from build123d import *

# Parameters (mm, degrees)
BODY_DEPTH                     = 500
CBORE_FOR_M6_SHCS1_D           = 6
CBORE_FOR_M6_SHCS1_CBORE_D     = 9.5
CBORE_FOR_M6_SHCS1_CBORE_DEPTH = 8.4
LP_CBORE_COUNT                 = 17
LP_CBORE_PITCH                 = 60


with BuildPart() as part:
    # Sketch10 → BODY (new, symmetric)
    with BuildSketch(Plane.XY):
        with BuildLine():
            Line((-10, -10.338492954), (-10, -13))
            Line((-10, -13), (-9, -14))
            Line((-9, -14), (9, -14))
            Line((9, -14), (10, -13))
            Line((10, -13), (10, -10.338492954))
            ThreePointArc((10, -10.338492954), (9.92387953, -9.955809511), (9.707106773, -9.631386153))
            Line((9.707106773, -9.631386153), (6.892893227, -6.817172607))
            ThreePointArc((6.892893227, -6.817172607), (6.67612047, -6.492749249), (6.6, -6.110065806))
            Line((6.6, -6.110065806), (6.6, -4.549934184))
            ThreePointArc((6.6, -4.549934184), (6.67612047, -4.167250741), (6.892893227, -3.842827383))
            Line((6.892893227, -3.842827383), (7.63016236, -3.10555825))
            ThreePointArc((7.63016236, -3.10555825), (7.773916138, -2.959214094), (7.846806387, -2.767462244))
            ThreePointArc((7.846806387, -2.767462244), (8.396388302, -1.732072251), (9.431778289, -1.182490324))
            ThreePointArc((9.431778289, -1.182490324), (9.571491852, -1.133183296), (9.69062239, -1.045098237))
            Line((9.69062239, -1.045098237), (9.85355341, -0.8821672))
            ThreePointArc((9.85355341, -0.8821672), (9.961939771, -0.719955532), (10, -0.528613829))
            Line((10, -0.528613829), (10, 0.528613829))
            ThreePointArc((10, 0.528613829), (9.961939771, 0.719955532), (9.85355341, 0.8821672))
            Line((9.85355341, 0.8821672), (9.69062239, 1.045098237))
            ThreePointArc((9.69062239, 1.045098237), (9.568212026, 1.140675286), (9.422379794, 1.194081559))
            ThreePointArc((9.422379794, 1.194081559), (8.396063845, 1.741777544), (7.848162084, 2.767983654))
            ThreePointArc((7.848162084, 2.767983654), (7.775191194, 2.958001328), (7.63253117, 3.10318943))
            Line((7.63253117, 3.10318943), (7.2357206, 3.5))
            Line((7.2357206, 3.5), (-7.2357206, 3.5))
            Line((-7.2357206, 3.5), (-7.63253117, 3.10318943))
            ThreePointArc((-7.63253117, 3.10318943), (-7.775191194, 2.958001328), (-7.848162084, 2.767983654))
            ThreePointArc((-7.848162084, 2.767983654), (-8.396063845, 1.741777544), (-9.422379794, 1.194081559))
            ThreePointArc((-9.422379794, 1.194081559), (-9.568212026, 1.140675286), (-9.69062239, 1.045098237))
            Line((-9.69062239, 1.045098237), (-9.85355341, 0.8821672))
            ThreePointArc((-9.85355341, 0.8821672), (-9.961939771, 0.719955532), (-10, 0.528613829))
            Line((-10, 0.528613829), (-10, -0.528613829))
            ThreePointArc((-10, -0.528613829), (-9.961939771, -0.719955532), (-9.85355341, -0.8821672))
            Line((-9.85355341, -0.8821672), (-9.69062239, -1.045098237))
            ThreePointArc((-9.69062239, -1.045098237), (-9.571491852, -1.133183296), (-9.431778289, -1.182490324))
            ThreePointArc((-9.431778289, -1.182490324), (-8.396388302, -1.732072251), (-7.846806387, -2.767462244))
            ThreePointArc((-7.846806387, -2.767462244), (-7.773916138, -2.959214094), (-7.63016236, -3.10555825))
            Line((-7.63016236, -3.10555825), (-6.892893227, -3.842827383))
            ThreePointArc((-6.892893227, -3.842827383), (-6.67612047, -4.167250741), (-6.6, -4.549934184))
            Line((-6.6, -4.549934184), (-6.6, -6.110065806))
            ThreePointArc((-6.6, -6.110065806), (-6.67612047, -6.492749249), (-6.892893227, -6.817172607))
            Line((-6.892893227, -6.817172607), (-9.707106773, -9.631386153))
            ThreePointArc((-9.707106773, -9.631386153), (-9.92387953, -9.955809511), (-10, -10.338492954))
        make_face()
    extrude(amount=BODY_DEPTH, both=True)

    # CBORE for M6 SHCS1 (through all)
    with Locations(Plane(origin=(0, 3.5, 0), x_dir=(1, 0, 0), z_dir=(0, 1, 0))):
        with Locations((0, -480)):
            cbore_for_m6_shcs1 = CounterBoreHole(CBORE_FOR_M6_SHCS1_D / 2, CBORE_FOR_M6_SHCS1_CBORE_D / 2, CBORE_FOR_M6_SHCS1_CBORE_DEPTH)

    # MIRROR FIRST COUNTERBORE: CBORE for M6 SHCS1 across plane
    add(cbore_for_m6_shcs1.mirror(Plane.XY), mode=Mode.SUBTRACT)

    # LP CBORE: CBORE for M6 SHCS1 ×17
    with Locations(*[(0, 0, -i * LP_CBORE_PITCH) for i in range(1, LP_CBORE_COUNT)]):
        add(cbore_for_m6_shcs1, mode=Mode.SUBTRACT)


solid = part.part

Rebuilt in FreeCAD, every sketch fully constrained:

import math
import FreeCAD as App
import Part
import Sketcher
Q = App.Units.Quantity

doc = App.newDocument("Part")
body = doc.addObject("PartDesign::Body", "Body")

sketch1 = body.newObject("Sketcher::SketchObject", "Sketch")
sketch1.AttachmentSupport = (doc.getObject("XY_Plane"), [""])
sketch1.MapMode = "FlatFace"
sketch1.addGeometry([
    Part.LineSegment(App.Vector(-10, -10.34, 0), App.Vector(-10, -13, 0)),
    Part.LineSegment(App.Vector(-10, -13, 0), App.Vector(-9, -14, 0)),
    Part.LineSegment(App.Vector(-9, -14, 0), App.Vector(9, -14, 0)),
    Part.LineSegment(App.Vector(9, -14, 0), App.Vector(10, -13, 0)),
    Part.LineSegment(App.Vector(10, -13, 0), App.Vector(10, -10.34, 0)),
    Part.ArcOfCircle(Part.Circle(App.Vector(9, -10.34, 0), App.Vector(0, 0, 1), 1), math.radians(0), math.radians(45)),
    Part.LineSegment(App.Vector(9.71, -9.63, 0), App.Vector(6.89, -6.82, 0)),
    Part.ArcOfCircle(Part.Circle(App.Vector(7.6, -6.11, 0), App.Vector(0, 0, 1), 1), math.radians(-180), math.radians(-135)),
    Part.LineSegment(App.Vector(6.6, -6.11, 0), App.Vector(6.6, -4.55, 0)),
    Part.ArcOfCircle(Part.Circle(App.Vector(7.6, -4.55, 0), App.Vector(0, 0, 1), 1), math.radians(135), math.radians(180)),
    Part.LineSegment(App.Vector(6.89, -3.84, 0), App.Vector(7.63, -3.11, 0)),
    Part.ArcOfCircle(Part.Circle(App.Vector(7.35, -2.69, 0), App.Vector(0, 0, 1), 0.5), math.radians(-56), math.radians(-9)),
    Part.ArcOfCircle(Part.Circle(App.Vector(9.81, -3.15, 0), App.Vector(0, 0, 1), 2), math.radians(101), math.radians(169)),
    Part.ArcOfCircle(Part.Circle(App.Vector(9.34, -0.69, 0), App.Vector(0, 0, 1), 0.5), math.radians(-79), math.radians(-45)),
    Part.LineSegment(App.Vector(9.69, -1.05, 0), App.Vector(9.85, -0.88, 0)),
    Part.ArcOfCircle(Part.Circle(App.Vector(9.5, -0.53, 0), App.Vector(0, 0, 1), 0.5), math.radians(-45), math.radians(0)),
    Part.LineSegment(App.Vector(10, -0.53, 0), App.Vector(10, 0.53, 0)),
    Part.ArcOfCircle(Part.Circle(App.Vector(9.5, 0.53, 0), App.Vector(0, 0, 1), 0.5), math.radians(0), math.radians(45)),
    Part.LineSegment(App.Vector(9.85, 0.88, 0), App.Vector(9.69, 1.05, 0)),
    Part.ArcOfCircle(Part.Circle(App.Vector(9.33, 0.7, 0), App.Vector(0, 0, 1), 0.5), math.radians(43), math.radians(79)),
    Part.ArcOfCircle(Part.Circle(App.Vector(9.81, 3.16, 0), App.Vector(0, 0, 1), 2), math.radians(-169), math.radians(-101)),
    Part.ArcOfCircle(Part.Circle(App.Vector(7.35, 2.69, 0), App.Vector(0, 0, 1), 0.5), math.radians(9), math.radians(56)),
    Part.LineSegment(App.Vector(7.63, 3.1, 0), App.Vector(7.24, 3.5, 0)),
    Part.LineSegment(App.Vector(7.24, 3.5, 0), App.Vector(-7.24, 3.5, 0)),
    Part.LineSegment(App.Vector(-7.24, 3.5, 0), App.Vector(-7.63, 3.1, 0)),
    Part.ArcOfCircle(Part.Circle(App.Vector(-7.35, 2.69, 0), App.Vector(0, 0, 1), 0.5), math.radians(124), math.radians(171)),
    Part.ArcOfCircle(Part.Circle(App.Vector(-9.81, 3.16, 0), App.Vector(0, 0, 1), 2), math.radians(-79), math.radians(-11)),
    Part.ArcOfCircle(Part.Circle(App.Vector(-9.33, 0.7, 0), App.Vector(0, 0, 1), 0.5), math.radians(101), math.radians(137)),
    Part.LineSegment(App.Vector(-9.69, 1.05, 0), App.Vector(-9.85, 0.88, 0)),
    Part.ArcOfCircle(Part.Circle(App.Vector(-9.5, 0.53, 0), App.Vector(0, 0, 1), 0.5), math.radians(135), math.radians(180)),
    Part.LineSegment(App.Vector(-10, 0.53, 0), App.Vector(-10, -0.53, 0)),
    Part.ArcOfCircle(Part.Circle(App.Vector(-9.5, -0.53, 0), App.Vector(0, 0, 1), 0.5), math.radians(-180), math.radians(-135)),
    Part.LineSegment(App.Vector(-9.85, -0.88, 0), App.Vector(-9.69, -1.05, 0)),
    Part.ArcOfCircle(Part.Circle(App.Vector(-9.34, -0.69, 0), App.Vector(0, 0, 1), 0.5), math.radians(-135), math.radians(-101)),
    Part.ArcOfCircle(Part.Circle(App.Vector(-9.81, -3.15, 0), App.Vector(0, 0, 1), 2), math.radians(11), math.radians(79)),
    Part.ArcOfCircle(Part.Circle(App.Vector(-7.35, -2.69, 0), App.Vector(0, 0, 1), 0.5), math.radians(-171), math.radians(-124)),
    Part.LineSegment(App.Vector(-7.63, -3.11, 0), App.Vector(-6.89, -3.84, 0)),
    Part.ArcOfCircle(Part.Circle(App.Vector(-7.6, -4.55, 0), App.Vector(0, 0, 1), 1), math.radians(0), math.radians(45)),
    Part.LineSegment(App.Vector(-6.6, -4.55, 0), App.Vector(-6.6, -6.11, 0)),
    Part.ArcOfCircle(Part.Circle(App.Vector(-7.6, -6.11, 0), App.Vector(0, 0, 1), 1), math.radians(-45), math.radians(0)),
    Part.LineSegment(App.Vector(-6.89, -6.82, 0), App.Vector(-9.71, -9.63, 0)),
    Part.ArcOfCircle(Part.Circle(App.Vector(-9, -10.34, 0), App.Vector(0, 0, 1), 1), math.radians(135), math.radians(180)),
], False)
sketch1.addConstraint([
    Sketcher.Constraint("Coincident", 0, 2, 1, 1),
    Sketcher.Constraint("Coincident", 1, 2, 2, 1),
    Sketcher.Constraint("Coincident", 2, 2, 3, 1),
    Sketcher.Constraint("Coincident", 3, 2, 4, 1),
    Sketcher.Constraint("Tangent", 4, 2, 5, 1),
    Sketcher.Constraint("Tangent", 5, 2, 6, 1),
    Sketcher.Constraint("Tangent", 6, 2, 7, 2),
    Sketcher.Constraint("Tangent", 7, 1, 8, 1),
    Sketcher.Constraint("Tangent", 8, 2, 9, 2),
    Sketcher.Constraint("Tangent", 9, 1, 10, 1),
    Sketcher.Constraint("Coincident", 10, 2, 11, 1),
    Sketcher.Constraint("Coincident", 11, 2, 12, 2),
    Sketcher.Constraint("Tangent", 12, 1, 13, 1),
    Sketcher.Constraint("Coincident", 13, 2, 14, 1),
    Sketcher.Constraint("Tangent", 14, 2, 15, 1),
    Sketcher.Constraint("Tangent", 15, 2, 16, 1),
    Sketcher.Constraint("Tangent", 16, 2, 17, 1),
    Sketcher.Constraint("Tangent", 17, 2, 18, 1),
    Sketcher.Constraint("Coincident", 18, 2, 19, 1),
    Sketcher.Constraint("Tangent", 19, 2, 20, 2),
    Sketcher.Constraint("Coincident", 20, 1, 21, 1),
    Sketcher.Constraint("Coincident", 21, 2, 22, 1),
    Sketcher.Constraint("Coincident", 22, 2, 23, 1),
    Sketcher.Constraint("Coincident", 23, 2, 24, 1),
    Sketcher.Constraint("Coincident", 24, 2, 25, 1),
    Sketcher.Constraint("Coincident", 25, 2, 26, 2),
    Sketcher.Constraint("Tangent", 26, 1, 27, 1),
    Sketcher.Constraint("Coincident", 27, 2, 28, 1),
    Sketcher.Constraint("Tangent", 28, 2, 29, 1),
    Sketcher.Constraint("Tangent", 29, 2, 30, 1),
    Sketcher.Constraint("Tangent", 30, 2, 31, 1),
    Sketcher.Constraint("Tangent", 31, 2, 32, 1),
    Sketcher.Constraint("Coincident", 32, 2, 33, 1),
    Sketcher.Constraint("Tangent", 33, 2, 34, 2),
    Sketcher.Constraint("Coincident", 34, 1, 35, 1),
    Sketcher.Constraint("Coincident", 35, 2, 36, 1),
    Sketcher.Constraint("Tangent", 36, 2, 37, 2),
    Sketcher.Constraint("Tangent", 37, 1, 38, 1),
    Sketcher.Constraint("Tangent", 38, 2, 39, 2),
    Sketcher.Constraint("Tangent", 39, 1, 40, 1),
    Sketcher.Constraint("Tangent", 40, 2, 41, 1),
    Sketcher.Constraint("Tangent", 41, 2, 0, 1),
    Sketcher.Constraint("Vertical", 0),
    Sketcher.Constraint("Horizontal", 2),
    Sketcher.Constraint("Vertical", 4),
    Sketcher.Constraint("Vertical", 8),
    Sketcher.Constraint("Vertical", 16),
    Sketcher.Constraint("Horizontal", 23),
    Sketcher.Constraint("Vertical", 30),
    Sketcher.Constraint("Vertical", 38),
    Sketcher.Constraint("Equal", 5, 7),
    Sketcher.Constraint("Equal", 7, 9),
    Sketcher.Constraint("Equal", 11, 13),
    Sketcher.Constraint("Equal", 13, 15),
    Sketcher.Constraint("Equal", 15, 17),
    Sketcher.Constraint("Equal", 17, 19),
    Sketcher.Constraint("Equal", 12, 20),
    Sketcher.Constraint("Equal", 19, 21),
    Sketcher.Constraint("Equal", 21, 25),
    Sketcher.Constraint("Equal", 20, 26),
    Sketcher.Constraint("Equal", 25, 27),
    Sketcher.Constraint("Equal", 27, 29),
    Sketcher.Constraint("Equal", 29, 31),
    Sketcher.Constraint("Equal", 31, 33),
    Sketcher.Constraint("Equal", 26, 34),
    Sketcher.Constraint("Equal", 33, 35),
    Sketcher.Constraint("Equal", 9, 37),
    Sketcher.Constraint("Equal", 37, 39),
    Sketcher.Constraint("Equal", 39, 41),
    Sketcher.Constraint("Symmetric", 15, 3, 29, 3, -1, 1),
    Sketcher.Constraint("Symmetric", 13, 2, 27, 2, -1, 1),
    Sketcher.Constraint("Symmetric", 17, 2, 31, 2, -1, 1),
    Sketcher.Constraint("Symmetric", 21, 3, 25, 3, -2),
    Sketcher.Constraint("Symmetric", 20, 3, 26, 3, -2),
    Sketcher.Constraint("Symmetric", 13, 3, 33, 3, -2),
    Sketcher.Constraint("Symmetric", 11, 3, 35, 3, -2),
    Sketcher.Constraint("Symmetric", 9, 3, 37, 3, -2),
    Sketcher.Constraint("Symmetric", 5, 3, 41, 3, -2),
    Sketcher.Constraint("Perpendicular", 1, 3),
    Sketcher.Constraint("Perpendicular", 3, 6),
    Sketcher.Constraint("Perpendicular", 6, 10),
    Sketcher.Constraint("Parallel", 10, 14),
    Sketcher.Constraint("Perpendicular", 14, 18),
    Sketcher.Constraint("Parallel", 18, 22),
    Sketcher.Constraint("Perpendicular", 22, 24),
    Sketcher.Constraint("Parallel", 32, 36),
    Sketcher.Constraint("Perpendicular", 36, 40),
    Sketcher.Constraint("Horizontal", 19, 3, 27, 3),
    Sketcher.Constraint("Horizontal", 17, 3, 29, 3),
    Sketcher.Constraint("Horizontal", 12, 3, 34, 3),
    Sketcher.Constraint("Horizontal", 0, 2, 3, 2),
    Sketcher.Constraint("Horizontal", 21, 2, 24, 2),
    Sketcher.Constraint("Horizontal", 13, 2, 32, 2),
    Sketcher.Constraint("Vertical", 41, 3, 1, 2),
    Sketcher.Constraint("Vertical", 4, 2, 15, 2),
    Sketcher.Constraint("Radius", 5, Q("1 mm")),
    Sketcher.Constraint("Radius", 12, Q("2 mm")),
    Sketcher.Constraint("Radius", 11, Q("0.5 mm")),
    Sketcher.Constraint("DistanceX", 2, 1, 2, 2, Q("18 mm")),
    Sketcher.Constraint("DistanceY", 0, 2, -1, 1, Q("13 mm")),
    Sketcher.Constraint("DistanceX", -1, 1, 7, 3, Q("7.6 mm")),
    Sketcher.Constraint("DistanceY", -1, 1, 22, 2, Q("3.5 mm")),
    Sketcher.Constraint("DistanceX", 23, 2, 23, 1, Q("14.471441 mm")),
    Sketcher.Constraint("DistanceY", 8, 1, 8, 2, Q("1.560132 mm")),
    Sketcher.Constraint("DistanceX", -1, 1, 12, 3, Q("9.810602 mm")),
    Sketcher.Constraint("DistanceY", 13, 2, -1, 1, Q("1.045098 mm")),
    Sketcher.Constraint("Distance", 14, Q("0.230419 mm")),
    Sketcher.Constraint("DistanceY", 0, 2, 0, 1, Q("2.661507 mm")),
    Sketcher.Constraint("DistanceX", -1, 1, 11, 3, Q("7.352929 mm")),
    Sketcher.Constraint("DistanceY", 13, 3, -1, 1, Q("0.691541 mm")),
    Sketcher.Constraint("DistanceX", -1, 1, 19, 3, Q("9.325441 mm")),
    Sketcher.Constraint("DistanceY", 10, 2, -1, 1, Q("3.105558 mm")),
    Sketcher.Constraint("DistanceX", -1, 1, 19, 2, Q("9.42238 mm")),
    Sketcher.Constraint("DistanceX", -1, 1, 21, 2, Q("7.632531 mm")),
    Sketcher.Constraint("DistanceX", -1, 1, 21, 3, Q("7.354683 mm")),
])
pad1 = body.newObject("PartDesign::Pad", "Pad")
pad1.Profile = sketch1
pad1.Length = 1000
pad1.Midplane = True

sketch2 = body.newObject("Sketcher::SketchObject", "Sketch001")
sketch2.AttachmentSupport = (doc.getObject("XZ_Plane"), [""])
sketch2.MapMode = "FlatFace"
sketch2.AttachmentOffset = App.Placement(App.Vector(0, 0, -3.5), App.Rotation())
sketch2.addGeometry(Part.Circle(App.Vector(0, 480, 0), App.Vector(0, 0, 1), 3), False)
sketch2.addConstraint([
    Sketcher.Constraint("PointOnObject", 0, 3, -2),
    Sketcher.Constraint("Diameter", 0, Q("6 mm")),
    Sketcher.Constraint("DistanceY", -1, 1, 0, 3, Q("480 mm")),
])
doc.recompute()
hole = body.newObject("PartDesign::Hole", "Hole")
hole.Profile = sketch2
hole.ThreadType = "None"
hole.Diameter = 6
hole.DepthType = "ThroughAll"
hole.HoleCutType = "Counterbore"
hole.HoleCutDiameter = 9.5
hole.HoleCutDepth = 8.4
hole.Reversed = True
doc.recompute()

mirrored = body.newObject("PartDesign::Mirrored", "Mirrored")
mirrored.Originals = [hole]
mirrored.MirrorPlane = (doc.getObject("XY_Plane"), [""])
body.Tip = mirrored
doc.recompute()

linearpattern = body.newObject("PartDesign::LinearPattern", "LinearPattern")
linearpattern.Originals = [hole]
linearpattern.Direction = (doc.getObject("Z_Axis"), [""])
linearpattern.Mode = "offset"
linearpattern.Offset = 60
linearpattern.Occurrences = 17
linearpattern.Reversed = True
body.Tip = linearpattern

doc.recompute()
